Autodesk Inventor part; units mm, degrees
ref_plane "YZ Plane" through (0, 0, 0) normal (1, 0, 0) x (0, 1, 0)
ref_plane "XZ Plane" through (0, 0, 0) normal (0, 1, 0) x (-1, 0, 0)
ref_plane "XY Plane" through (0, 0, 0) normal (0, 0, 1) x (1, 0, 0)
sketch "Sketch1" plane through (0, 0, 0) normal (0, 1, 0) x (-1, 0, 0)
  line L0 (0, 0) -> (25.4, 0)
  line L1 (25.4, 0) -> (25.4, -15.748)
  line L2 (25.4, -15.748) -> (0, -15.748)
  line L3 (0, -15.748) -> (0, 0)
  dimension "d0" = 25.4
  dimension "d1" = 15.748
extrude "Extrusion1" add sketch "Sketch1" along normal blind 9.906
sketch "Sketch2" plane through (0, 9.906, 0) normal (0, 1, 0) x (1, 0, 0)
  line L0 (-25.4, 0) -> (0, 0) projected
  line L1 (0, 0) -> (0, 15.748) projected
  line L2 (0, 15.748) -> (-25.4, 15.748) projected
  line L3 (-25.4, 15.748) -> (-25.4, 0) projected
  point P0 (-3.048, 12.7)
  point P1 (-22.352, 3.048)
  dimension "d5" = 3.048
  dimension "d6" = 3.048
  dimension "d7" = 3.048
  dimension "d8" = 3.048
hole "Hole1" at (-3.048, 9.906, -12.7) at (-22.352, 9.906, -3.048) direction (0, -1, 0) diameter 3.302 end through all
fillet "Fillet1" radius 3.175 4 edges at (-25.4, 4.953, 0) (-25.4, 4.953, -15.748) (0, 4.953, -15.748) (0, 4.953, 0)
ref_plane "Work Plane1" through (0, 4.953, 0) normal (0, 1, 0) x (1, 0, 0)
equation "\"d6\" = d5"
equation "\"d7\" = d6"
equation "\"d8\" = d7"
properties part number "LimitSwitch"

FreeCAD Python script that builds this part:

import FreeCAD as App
import Part
import Sketcher

V = App.Vector
Q = App.Units.Quantity


def edges_at(feature, points):
    """Names of the edges that pass closest to the given points."""
    edges = feature.Shape.Edges
    near = lambda p: min(range(len(edges)), key=lambda i: edges[i].distToShape(Part.Vertex(*p))[0])
    return sorted({f"Edge{near(p) + 1}" for p in points})


def add_polygon(sketch, points):
    """Adds a closed chain of lines whose ends are joined by coincident constraints."""
    first, n = sketch.GeometryCount, len(points)
    for a, b in zip(points, points[1:] + points[:1]):
        sketch.addGeometry(Part.LineSegment(App.Vector(*a, 0), App.Vector(*b, 0)), False)
    for i in range(n):
        sketch.addConstraint(Sketcher.Constraint("Coincident", first + i, 2, first + (i + 1) % n, 1))

doc = App.newDocument("Part")
body = doc.addObject("PartDesign::Body", "Body")

# Sketch on XZ plane
sketch1 = body.newObject("Sketcher::SketchObject", "Sketch")
sketch1.AttachmentSupport = (doc.getObject("XZ_Plane"), [""])
sketch1.MapMode = "FlatFace"
add_polygon(sketch1, [(-25, 0), (0, 0), (0, -16), (-25, -16)])  # lines 0-3
sketch1.addConstraint([
    Sketcher.Constraint("Horizontal", 0),
    Sketcher.Constraint("Vertical", 1),
    Sketcher.Constraint("Horizontal", 2),
    Sketcher.Constraint("Vertical", 3),
    Sketcher.Constraint("Coincident", 0, 2, -1, 1),
    Sketcher.Constraint("DistanceX", 0, 1, 0, 2, Q("1 in")),
    Sketcher.Constraint("DistanceY", 1, 2, 1, 1, Q("0.62 in")),
])
pad1 = body.newObject("PartDesign::Pad", "Pad")
pad1.Profile = sketch1
pad1.Length = Q("0.39 in")
pad1.Reversed = True

# Sketch on XZ plane
sketch2 = body.newObject("Sketcher::SketchObject", "Sketch001")
sketch2.AttachmentSupport = (doc.getObject("XZ_Plane"), [""])
sketch2.MapMode = "FlatFace"
sketch2.AttachmentOffset = App.Placement(V(0, 0, -0.39 * 25.4), App.Rotation())
sketch2.addGeometry([
    Part.Circle(V(-3, -12.7, 0), V(0, 0, 1), 1.7),
    Part.Circle(V(-22.4, -3, 0), V(0, 0, 1), 1.7),
], False)
sketch2.addConstraint([
    Sketcher.Constraint("Equal", 0, 1),
    Sketcher.Constraint("Diameter", 0, Q("0.13 in")),
    Sketcher.Constraint("DistanceY", 0, 3, -1, 1, Q("0.5 in")),
    Sketcher.Constraint("DistanceX", 0, 3, -1, 1, Q("0.12 in")),
    Sketcher.Constraint("DistanceX", 1, 3, -1, 1, Q("0.88 in")),
    Sketcher.Constraint("DistanceY", 1, 3, -1, 1, Q("0.12 in")),
])
doc.recompute()
hole = body.newObject("PartDesign::Hole", "Hole")
hole.Profile = sketch2
hole.ThreadType = "None"
hole.Diameter = Q("0.13 in")
hole.DepthType = "ThroughAll"
hole.Reversed = True
doc.recompute()

fillet = body.newObject("PartDesign::Fillet", "Fillet")
fillet.Base = (hole, edges_at(hole, [
    (-25.4, 4.953, 0),
    (-25.4, 4.953, -15.748),
    (0, 4.953, -15.748),
    (0, 4.953, 0),
]))
fillet.Radius = Q("0.125 in")

doc.recompute()
